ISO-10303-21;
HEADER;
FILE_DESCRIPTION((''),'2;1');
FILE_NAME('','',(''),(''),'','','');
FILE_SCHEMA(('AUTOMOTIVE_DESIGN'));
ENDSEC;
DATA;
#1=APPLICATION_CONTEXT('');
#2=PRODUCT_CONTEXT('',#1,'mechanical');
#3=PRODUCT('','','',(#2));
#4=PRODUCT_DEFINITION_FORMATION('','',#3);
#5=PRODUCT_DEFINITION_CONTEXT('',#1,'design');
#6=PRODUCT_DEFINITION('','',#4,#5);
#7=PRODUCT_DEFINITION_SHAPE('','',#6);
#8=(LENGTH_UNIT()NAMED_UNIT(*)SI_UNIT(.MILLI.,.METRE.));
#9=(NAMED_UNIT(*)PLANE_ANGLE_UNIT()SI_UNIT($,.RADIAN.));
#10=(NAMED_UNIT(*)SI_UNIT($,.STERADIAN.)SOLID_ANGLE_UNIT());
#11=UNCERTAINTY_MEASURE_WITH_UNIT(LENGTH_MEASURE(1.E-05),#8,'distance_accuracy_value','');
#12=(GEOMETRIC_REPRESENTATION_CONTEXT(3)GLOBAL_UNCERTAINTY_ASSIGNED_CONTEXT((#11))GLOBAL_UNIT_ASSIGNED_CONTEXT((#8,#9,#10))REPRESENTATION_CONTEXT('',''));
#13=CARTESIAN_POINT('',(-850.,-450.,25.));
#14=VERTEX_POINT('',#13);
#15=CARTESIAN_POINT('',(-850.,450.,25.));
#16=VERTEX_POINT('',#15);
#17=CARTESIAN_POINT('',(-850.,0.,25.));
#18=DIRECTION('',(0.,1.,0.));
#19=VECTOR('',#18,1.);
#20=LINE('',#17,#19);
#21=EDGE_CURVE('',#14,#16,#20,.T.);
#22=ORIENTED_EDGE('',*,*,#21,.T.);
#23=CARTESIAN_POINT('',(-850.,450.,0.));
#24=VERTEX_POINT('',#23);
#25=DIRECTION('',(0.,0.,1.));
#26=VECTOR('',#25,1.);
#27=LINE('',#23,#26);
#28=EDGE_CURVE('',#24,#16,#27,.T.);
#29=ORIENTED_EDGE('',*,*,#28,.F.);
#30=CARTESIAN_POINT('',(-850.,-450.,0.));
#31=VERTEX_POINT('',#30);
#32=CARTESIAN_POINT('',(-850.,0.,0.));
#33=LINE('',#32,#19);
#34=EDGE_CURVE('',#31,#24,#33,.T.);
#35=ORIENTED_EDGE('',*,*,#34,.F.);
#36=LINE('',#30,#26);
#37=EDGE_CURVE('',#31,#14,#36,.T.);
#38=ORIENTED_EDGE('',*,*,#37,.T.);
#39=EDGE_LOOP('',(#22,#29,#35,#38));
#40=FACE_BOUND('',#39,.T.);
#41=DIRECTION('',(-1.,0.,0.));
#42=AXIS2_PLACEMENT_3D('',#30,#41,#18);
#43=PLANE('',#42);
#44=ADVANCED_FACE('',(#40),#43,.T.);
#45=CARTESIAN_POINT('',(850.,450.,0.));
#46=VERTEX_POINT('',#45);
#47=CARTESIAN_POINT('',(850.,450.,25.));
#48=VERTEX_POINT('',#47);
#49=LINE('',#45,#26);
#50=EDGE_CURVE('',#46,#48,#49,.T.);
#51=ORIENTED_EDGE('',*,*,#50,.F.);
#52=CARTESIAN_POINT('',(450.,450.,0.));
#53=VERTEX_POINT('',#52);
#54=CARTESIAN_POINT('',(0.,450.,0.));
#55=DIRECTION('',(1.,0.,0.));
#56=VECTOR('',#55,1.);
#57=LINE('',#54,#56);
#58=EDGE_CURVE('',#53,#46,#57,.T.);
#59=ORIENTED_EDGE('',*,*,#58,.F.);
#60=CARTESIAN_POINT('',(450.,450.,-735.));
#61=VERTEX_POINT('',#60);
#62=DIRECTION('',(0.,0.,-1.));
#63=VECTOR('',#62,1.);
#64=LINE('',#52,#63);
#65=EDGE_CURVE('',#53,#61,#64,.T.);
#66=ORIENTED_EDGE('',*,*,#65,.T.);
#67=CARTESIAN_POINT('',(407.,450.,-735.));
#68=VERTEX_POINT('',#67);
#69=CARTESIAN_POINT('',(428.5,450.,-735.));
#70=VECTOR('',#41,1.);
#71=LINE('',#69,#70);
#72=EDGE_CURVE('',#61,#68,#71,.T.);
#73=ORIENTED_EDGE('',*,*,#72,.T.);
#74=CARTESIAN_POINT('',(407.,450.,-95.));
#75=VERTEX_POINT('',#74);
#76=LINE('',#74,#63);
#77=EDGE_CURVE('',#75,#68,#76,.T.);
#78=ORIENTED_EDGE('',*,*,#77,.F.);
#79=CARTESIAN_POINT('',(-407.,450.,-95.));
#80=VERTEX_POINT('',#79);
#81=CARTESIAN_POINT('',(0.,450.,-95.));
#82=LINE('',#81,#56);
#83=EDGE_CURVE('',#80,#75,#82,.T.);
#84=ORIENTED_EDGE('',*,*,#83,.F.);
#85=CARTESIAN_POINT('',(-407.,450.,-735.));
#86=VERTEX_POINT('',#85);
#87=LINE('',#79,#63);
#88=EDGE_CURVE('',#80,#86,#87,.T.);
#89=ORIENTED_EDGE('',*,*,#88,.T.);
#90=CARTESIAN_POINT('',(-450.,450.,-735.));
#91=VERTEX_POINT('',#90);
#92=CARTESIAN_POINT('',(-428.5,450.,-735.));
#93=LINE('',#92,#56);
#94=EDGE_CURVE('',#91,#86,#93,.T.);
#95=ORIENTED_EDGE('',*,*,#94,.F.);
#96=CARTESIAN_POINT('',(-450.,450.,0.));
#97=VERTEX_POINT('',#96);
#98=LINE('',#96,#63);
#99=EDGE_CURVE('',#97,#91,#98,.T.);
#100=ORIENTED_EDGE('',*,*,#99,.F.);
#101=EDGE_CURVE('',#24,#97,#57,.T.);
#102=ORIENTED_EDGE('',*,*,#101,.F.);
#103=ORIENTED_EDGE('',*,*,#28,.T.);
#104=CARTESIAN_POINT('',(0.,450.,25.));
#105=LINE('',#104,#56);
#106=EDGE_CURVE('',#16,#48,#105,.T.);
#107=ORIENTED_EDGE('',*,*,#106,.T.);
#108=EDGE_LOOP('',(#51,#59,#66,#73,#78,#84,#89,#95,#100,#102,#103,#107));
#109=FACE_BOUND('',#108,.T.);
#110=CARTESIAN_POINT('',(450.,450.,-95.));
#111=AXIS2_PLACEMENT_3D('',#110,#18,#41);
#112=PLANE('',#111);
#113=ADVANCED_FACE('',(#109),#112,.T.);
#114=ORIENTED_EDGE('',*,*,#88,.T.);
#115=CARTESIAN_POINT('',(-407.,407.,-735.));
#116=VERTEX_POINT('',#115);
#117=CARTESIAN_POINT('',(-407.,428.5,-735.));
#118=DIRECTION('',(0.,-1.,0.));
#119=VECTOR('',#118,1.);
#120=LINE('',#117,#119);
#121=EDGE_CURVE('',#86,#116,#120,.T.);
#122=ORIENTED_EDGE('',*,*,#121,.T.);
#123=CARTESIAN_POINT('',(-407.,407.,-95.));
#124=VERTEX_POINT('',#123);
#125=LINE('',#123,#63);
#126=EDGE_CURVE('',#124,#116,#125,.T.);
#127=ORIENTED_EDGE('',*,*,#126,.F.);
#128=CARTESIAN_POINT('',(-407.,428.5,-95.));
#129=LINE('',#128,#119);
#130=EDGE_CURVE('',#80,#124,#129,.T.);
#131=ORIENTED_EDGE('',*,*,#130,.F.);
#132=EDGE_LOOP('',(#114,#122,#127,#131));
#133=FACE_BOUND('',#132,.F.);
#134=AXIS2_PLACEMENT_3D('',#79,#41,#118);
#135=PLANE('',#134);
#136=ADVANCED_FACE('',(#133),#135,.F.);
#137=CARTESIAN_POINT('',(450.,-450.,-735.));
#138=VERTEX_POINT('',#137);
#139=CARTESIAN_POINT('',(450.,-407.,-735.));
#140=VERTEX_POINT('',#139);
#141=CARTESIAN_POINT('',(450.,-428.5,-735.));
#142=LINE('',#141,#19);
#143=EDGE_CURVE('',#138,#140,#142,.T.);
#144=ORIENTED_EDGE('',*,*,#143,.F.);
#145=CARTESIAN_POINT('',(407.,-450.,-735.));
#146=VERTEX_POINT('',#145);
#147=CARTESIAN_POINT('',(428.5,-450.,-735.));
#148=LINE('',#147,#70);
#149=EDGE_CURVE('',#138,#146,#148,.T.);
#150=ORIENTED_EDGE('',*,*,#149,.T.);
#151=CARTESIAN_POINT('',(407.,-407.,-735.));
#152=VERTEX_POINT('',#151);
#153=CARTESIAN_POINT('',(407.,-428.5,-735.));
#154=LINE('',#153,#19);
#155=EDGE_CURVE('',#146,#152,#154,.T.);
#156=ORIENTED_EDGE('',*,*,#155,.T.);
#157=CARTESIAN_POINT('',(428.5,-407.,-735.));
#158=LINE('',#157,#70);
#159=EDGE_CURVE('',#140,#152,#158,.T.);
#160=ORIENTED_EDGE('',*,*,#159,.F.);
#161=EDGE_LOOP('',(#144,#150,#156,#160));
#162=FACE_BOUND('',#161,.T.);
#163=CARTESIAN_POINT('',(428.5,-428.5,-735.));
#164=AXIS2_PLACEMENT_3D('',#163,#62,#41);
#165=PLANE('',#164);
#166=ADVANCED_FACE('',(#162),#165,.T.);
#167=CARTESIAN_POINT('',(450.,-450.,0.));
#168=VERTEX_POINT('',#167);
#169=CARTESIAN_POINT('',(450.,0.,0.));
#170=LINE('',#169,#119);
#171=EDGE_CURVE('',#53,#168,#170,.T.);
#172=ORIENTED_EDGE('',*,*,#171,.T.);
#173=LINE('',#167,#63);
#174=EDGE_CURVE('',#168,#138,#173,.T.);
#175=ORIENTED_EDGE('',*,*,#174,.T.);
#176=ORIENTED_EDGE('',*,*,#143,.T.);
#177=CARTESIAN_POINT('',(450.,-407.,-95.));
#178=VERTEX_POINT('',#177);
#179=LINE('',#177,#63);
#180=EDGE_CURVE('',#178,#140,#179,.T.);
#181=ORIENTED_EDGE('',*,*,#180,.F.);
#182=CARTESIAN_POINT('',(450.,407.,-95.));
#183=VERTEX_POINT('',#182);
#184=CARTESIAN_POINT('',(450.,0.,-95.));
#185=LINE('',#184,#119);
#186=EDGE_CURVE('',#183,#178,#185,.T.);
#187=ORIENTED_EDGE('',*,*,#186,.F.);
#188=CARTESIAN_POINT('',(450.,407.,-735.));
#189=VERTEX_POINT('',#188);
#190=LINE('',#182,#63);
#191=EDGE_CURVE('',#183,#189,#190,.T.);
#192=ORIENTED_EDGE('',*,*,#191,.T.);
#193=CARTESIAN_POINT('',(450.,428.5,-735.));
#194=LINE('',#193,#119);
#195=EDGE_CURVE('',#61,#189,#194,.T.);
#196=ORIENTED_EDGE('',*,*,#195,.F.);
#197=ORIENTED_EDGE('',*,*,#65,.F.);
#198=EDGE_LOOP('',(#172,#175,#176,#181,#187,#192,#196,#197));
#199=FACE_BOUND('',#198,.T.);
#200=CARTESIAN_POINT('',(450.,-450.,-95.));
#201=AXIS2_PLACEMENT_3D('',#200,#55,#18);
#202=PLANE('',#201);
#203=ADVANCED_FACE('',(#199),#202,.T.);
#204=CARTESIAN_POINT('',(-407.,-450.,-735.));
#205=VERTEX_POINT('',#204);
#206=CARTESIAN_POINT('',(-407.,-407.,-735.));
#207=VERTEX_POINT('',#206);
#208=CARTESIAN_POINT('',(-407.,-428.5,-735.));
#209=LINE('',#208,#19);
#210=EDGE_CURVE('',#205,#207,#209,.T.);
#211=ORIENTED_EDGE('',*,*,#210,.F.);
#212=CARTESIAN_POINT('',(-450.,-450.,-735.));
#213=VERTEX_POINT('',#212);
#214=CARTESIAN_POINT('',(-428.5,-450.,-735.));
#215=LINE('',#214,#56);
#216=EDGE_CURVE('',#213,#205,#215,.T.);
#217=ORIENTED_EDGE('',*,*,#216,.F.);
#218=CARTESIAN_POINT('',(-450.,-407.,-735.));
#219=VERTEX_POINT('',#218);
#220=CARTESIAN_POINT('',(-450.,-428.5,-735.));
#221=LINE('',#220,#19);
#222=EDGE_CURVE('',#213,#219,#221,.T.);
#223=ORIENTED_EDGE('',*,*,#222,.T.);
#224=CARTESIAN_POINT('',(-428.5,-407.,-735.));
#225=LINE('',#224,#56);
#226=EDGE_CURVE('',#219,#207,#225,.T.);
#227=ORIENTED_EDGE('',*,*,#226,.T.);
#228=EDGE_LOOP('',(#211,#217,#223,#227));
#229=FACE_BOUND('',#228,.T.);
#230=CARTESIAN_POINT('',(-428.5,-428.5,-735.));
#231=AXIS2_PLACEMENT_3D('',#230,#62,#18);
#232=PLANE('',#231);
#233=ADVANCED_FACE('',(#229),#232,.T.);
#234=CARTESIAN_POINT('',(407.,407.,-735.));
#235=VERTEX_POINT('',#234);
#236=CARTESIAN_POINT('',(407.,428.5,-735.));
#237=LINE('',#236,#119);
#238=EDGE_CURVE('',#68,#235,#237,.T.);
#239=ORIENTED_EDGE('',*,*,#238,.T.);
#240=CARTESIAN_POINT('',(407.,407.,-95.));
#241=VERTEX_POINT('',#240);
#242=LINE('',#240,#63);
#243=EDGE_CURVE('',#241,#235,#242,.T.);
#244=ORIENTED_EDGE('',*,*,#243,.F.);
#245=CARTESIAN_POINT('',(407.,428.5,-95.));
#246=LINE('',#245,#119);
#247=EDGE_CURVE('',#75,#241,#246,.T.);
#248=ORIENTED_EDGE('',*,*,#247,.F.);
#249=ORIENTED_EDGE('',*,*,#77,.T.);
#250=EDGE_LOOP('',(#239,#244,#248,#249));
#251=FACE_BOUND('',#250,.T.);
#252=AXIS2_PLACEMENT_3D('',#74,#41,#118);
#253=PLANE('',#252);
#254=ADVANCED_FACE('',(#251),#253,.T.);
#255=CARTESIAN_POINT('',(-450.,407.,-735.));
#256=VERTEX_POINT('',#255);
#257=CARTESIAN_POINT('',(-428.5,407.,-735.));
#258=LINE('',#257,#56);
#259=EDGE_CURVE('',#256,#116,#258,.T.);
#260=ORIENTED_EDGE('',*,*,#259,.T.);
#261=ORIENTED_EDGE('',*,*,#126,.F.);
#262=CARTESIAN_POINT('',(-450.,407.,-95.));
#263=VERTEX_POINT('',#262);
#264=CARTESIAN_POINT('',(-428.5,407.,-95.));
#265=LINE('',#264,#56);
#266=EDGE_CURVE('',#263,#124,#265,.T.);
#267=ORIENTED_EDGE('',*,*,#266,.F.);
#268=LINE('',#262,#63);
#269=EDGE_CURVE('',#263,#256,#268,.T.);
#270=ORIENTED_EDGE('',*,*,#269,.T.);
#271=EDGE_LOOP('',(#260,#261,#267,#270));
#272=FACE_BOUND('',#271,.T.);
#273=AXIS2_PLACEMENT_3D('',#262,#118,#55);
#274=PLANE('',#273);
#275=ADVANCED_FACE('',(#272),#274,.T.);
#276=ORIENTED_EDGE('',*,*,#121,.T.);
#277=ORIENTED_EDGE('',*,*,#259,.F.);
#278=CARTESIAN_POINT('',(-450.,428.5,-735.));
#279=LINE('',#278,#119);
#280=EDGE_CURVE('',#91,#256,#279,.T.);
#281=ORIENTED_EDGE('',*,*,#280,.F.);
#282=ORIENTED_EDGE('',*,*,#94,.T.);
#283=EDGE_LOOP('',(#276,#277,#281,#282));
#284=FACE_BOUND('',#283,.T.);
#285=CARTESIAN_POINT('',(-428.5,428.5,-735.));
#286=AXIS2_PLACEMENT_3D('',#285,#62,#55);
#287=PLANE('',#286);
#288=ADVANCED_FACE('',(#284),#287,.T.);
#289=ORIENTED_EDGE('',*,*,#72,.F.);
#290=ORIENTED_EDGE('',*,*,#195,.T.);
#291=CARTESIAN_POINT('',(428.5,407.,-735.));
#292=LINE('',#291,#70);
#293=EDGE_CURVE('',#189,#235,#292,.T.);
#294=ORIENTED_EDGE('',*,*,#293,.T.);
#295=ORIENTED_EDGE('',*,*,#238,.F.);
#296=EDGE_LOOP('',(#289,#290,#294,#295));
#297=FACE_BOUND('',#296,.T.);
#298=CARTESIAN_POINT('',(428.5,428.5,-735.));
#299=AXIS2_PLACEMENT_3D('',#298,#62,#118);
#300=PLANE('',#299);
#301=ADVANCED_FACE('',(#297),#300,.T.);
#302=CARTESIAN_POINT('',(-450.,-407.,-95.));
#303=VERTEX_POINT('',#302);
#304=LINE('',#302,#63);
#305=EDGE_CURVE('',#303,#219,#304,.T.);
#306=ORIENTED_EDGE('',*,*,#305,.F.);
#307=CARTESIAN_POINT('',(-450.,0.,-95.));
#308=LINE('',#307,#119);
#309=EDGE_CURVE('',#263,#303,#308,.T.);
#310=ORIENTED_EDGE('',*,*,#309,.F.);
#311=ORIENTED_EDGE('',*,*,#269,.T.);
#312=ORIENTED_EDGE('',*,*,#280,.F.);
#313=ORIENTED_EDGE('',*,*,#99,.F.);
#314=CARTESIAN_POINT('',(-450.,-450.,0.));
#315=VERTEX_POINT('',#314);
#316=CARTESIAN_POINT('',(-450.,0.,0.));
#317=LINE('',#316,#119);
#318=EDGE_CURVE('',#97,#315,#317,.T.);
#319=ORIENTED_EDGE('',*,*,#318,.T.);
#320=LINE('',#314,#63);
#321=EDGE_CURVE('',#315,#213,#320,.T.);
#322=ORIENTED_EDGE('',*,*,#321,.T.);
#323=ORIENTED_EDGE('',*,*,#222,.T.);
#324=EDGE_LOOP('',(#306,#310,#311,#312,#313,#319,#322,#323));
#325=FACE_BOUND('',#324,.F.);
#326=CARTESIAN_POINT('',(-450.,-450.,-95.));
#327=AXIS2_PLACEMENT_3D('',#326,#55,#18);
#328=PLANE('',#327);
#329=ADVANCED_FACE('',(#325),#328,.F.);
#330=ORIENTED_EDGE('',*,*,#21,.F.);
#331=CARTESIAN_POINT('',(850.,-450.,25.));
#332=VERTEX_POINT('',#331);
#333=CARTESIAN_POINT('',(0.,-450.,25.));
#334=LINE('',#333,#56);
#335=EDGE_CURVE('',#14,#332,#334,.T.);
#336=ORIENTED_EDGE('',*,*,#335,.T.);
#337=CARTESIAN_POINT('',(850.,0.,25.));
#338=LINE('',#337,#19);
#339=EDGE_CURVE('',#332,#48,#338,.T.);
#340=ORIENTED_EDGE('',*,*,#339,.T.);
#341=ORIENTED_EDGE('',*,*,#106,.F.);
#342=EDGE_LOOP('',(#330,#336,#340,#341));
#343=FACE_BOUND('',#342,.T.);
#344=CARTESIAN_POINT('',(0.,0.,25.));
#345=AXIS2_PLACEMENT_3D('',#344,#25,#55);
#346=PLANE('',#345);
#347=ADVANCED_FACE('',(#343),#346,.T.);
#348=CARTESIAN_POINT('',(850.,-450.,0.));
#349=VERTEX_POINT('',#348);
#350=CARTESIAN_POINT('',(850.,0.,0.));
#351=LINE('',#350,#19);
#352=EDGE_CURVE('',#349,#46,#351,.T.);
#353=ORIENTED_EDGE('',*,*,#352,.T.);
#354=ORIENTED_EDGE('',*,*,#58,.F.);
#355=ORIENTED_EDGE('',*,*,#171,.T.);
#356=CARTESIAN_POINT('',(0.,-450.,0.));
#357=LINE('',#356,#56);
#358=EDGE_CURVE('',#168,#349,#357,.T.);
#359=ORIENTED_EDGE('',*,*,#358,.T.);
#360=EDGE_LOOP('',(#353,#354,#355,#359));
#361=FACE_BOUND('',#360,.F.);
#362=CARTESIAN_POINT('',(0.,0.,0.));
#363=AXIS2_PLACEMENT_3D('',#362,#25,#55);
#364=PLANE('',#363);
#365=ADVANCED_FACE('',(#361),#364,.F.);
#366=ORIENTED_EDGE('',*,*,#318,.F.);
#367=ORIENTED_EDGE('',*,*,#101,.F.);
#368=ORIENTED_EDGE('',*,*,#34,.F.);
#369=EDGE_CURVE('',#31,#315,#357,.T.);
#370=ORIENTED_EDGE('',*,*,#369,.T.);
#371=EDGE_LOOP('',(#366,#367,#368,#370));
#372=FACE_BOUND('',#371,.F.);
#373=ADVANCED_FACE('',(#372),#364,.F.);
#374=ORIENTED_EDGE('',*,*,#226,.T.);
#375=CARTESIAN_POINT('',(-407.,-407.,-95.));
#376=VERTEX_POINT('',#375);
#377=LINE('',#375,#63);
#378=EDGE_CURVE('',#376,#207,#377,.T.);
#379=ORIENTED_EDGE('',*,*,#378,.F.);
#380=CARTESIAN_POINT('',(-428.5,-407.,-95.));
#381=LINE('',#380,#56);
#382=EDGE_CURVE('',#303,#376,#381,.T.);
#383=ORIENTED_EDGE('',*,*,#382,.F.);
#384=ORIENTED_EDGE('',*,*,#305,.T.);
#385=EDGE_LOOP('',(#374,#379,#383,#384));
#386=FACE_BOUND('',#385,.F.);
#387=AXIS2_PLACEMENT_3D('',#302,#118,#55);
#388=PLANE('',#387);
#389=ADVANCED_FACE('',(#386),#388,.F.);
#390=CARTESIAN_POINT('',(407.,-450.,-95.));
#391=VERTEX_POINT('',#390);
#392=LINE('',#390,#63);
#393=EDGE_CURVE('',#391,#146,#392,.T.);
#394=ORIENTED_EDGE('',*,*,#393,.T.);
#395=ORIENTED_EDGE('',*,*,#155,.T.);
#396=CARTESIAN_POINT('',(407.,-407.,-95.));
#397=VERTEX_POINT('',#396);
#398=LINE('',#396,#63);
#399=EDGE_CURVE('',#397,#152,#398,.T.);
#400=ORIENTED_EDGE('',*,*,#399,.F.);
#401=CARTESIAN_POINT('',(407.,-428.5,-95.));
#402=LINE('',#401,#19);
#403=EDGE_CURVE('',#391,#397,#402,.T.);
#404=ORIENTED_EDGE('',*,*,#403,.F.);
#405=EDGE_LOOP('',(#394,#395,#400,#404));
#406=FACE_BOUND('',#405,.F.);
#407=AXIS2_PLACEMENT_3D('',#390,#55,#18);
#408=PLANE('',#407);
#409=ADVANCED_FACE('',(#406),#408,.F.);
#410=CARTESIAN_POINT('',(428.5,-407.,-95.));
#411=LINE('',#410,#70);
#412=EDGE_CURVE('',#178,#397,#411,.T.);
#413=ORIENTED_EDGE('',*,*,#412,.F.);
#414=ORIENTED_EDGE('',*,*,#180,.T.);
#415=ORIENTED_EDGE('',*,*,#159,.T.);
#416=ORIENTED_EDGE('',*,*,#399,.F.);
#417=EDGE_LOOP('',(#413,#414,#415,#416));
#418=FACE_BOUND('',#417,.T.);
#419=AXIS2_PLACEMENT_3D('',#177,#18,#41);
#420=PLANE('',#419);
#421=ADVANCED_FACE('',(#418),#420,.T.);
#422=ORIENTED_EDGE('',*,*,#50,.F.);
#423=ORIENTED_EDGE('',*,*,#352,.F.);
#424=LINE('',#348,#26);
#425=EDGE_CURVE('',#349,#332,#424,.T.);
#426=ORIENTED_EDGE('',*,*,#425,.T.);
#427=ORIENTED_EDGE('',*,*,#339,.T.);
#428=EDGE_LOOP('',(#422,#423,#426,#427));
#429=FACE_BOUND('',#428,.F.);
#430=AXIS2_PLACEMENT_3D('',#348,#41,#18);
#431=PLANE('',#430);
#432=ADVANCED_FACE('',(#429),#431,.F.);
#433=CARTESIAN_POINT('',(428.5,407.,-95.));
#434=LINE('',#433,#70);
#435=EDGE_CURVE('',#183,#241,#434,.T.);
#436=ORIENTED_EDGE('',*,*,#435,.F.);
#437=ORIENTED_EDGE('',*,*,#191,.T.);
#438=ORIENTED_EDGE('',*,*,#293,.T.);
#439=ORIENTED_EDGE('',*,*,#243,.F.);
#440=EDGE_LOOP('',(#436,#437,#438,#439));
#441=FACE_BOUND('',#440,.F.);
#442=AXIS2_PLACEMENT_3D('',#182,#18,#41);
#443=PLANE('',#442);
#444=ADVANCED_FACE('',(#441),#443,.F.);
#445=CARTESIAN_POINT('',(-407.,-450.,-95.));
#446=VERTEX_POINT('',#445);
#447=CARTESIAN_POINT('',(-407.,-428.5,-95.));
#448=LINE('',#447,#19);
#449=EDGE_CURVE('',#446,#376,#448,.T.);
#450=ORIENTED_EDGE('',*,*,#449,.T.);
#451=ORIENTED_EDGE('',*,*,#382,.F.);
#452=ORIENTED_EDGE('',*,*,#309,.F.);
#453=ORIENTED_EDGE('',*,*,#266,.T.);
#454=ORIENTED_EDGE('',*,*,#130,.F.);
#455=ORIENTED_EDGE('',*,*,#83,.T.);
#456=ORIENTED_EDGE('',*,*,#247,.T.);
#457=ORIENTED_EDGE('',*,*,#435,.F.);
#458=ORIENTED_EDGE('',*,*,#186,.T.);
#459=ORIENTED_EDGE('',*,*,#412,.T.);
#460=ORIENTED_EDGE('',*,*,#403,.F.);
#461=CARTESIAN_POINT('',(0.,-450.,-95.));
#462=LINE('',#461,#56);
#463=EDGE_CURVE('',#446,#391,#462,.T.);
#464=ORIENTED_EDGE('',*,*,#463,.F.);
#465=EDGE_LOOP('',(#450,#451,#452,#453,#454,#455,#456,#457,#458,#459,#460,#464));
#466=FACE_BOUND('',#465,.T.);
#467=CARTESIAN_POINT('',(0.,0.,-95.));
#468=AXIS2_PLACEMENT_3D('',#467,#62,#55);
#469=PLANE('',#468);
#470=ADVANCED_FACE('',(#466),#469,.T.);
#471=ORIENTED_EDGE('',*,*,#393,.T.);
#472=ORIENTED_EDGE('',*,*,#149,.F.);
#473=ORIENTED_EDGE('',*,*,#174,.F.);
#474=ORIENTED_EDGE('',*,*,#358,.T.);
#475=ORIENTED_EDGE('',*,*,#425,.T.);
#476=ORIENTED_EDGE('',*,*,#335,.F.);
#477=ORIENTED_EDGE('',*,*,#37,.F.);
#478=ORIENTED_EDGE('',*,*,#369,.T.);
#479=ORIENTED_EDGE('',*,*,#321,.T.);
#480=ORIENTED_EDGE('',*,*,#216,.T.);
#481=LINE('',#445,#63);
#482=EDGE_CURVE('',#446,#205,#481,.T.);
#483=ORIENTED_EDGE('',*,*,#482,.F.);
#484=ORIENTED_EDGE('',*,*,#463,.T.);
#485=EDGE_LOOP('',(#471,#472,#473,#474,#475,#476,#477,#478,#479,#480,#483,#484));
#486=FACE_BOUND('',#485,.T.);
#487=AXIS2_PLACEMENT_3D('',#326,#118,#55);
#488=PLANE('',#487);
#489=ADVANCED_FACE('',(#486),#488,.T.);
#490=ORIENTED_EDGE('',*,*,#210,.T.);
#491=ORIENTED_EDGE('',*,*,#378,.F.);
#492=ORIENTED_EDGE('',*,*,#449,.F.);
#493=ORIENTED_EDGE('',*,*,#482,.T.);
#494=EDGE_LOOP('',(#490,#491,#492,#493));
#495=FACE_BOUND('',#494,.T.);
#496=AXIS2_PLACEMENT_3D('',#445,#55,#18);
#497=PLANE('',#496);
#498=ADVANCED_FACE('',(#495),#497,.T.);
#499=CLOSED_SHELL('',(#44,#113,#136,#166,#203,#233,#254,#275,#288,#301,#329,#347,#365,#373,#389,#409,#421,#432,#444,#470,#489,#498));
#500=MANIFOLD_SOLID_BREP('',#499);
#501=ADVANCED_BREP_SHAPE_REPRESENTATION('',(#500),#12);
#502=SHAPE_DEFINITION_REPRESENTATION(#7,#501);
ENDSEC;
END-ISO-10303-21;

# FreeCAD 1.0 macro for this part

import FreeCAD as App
import Part
import Sketcher
from FreeCAD import Vector


def add_polygon(sketch, points):
    """Adds a closed chain of lines whose ends are joined by coincident constraints."""
    first, n = sketch.GeometryCount, len(points)
    for a, b in zip(points, points[1:] + points[:1]):
        sketch.addGeometry(Part.LineSegment(App.Vector(*a, 0), App.Vector(*b, 0)), False)
    for i in range(n):
        sketch.addConstraint(Sketcher.Constraint("Coincident", first + i, 2, first + (i + 1) % n, 1))

doc = App.newDocument("Part")
params = doc.addObject("Spreadsheet::Sheet", "Params")
for row, (alias, value) in enumerate([
    ("sketch1_width", "1700 mm"),
    ("sketch1_height", "900 mm"),
    ("pad1_length", "25 mm"),
    ("sketch2_width", "900 mm"),
    ("pad2_length", "95 mm"),
    ("sketch3_width", "43 mm"),
    ("pad3_length", "640 mm"),
], start=1):
    params.set(f"A{row}", alias)
    params.set(f"B{row}", "=" + value)
    params.setAlias(f"B{row}", alias)

body = doc.addObject("PartDesign::Body", "Body")

sketch1 = doc.addObject("Sketcher::SketchObject", "Sketch")
body.addObject(sketch1)
sketch1.AttachmentSupport = (doc.XY_Plane, [""])
sketch1.MapMode = "FlatFace"
add_polygon(sketch1, [(-850, 450), (-850, -450), (850, -450), (850, 450)])
sketch1.addConstraint([
    Sketcher.Constraint("Vertical", 0),
    Sketcher.Constraint("Horizontal", 1),
    Sketcher.Constraint("Vertical", 2),
    Sketcher.Constraint("Horizontal", 3),
    Sketcher.Constraint("Symmetric", 0, 2, 2, 2, -1, 1),
    Sketcher.Constraint("DistanceX", 1, 1, 1, 2, 1700.0),
    Sketcher.Constraint("DistanceY", 0, 2, 0, 1, 900.0),
])
sketch1.setExpression("Constraints[9]", "Params.sketch1_width")
sketch1.setExpression("Constraints[10]", "Params.sketch1_height")
pad1 = doc.addObject("PartDesign::Pad", "Pad")
body.addObject(pad1)
pad1.Profile = sketch1
pad1.setExpression("Length", "Params.pad1_length")

sketch2 = doc.addObject("Sketcher::SketchObject", "Sketch001")
body.addObject(sketch2)
sketch2.AttachmentSupport = (doc.XY_Plane, [""])
sketch2.MapMode = "FlatFace"
add_polygon(sketch2, [(-450, -450), (-450, 450), (450, 450), (450, -450)])
sketch2.addConstraint([
    Sketcher.Constraint("Vertical", 0),
    Sketcher.Constraint("Horizontal", 1),
    Sketcher.Constraint("Vertical", 2),
    Sketcher.Constraint("Horizontal", 3),
    Sketcher.Constraint("Symmetric", 0, 2, 2, 2, -1, 1),
    Sketcher.Constraint("Equal", 3, 0),
    Sketcher.Constraint("DistanceX", 1, 1, 1, 2, 900.0),
])
sketch2.setExpression("Constraints[10]", "Params.sketch2_width")
pad2 = doc.addObject("PartDesign::Pad", "Pad001")
body.addObject(pad2)
pad2.Profile = sketch2
pad2.setExpression("Length", "Params.pad2_length")
pad2.Reversed = True

sketch3 = doc.addObject("Sketcher::SketchObject", "Sketch002")
body.addObject(sketch3)
sketch3.AttachmentSupport = (doc.XY_Plane, [""])
sketch3.MapMode = "FlatFace"
sketch3.AttachmentOffset = App.Placement(Vector(0, 0, -95), App.Rotation())
add_polygon(sketch3, [(-450, 407), (-450, 450), (-407, 450), (-407, 407)])
sketch3.addConstraint([
    Sketcher.Constraint("Vertical", 0),
    Sketcher.Constraint("Horizontal", 1),
    Sketcher.Constraint("Vertical", 2),
    Sketcher.Constraint("Horizontal", 3),
    Sketcher.Constraint("Equal", 3, 0),
    Sketcher.Constraint("DistanceX", 1, 1, 1, 2, 43.0),
    Sketcher.Constraint("DistanceX", 0, 2, -1, 1, 450.0),
    Sketcher.Constraint("DistanceY", -1, 1, 0, 2, 450.0),
])
sketch3.setExpression("Constraints[9]", "Params.sketch3_width")
pad3 = doc.addObject("PartDesign::Pad", "Pad002")
body.addObject(pad3)
pad3.Profile = sketch3
pad3.setExpression("Length", "Params.pad3_length")
pad3.Reversed = True
doc.recompute()

polarpattern = doc.addObject("PartDesign::PolarPattern", "PolarPattern")
body.addObject(polarpattern)
polarpattern.Originals = [pad3]
polarpattern.Axis = (doc.Z_Axis, [""])
polarpattern.Angle = 360
polarpattern.Occurrences = 4
body.Tip = polarpattern

doc.recompute()
